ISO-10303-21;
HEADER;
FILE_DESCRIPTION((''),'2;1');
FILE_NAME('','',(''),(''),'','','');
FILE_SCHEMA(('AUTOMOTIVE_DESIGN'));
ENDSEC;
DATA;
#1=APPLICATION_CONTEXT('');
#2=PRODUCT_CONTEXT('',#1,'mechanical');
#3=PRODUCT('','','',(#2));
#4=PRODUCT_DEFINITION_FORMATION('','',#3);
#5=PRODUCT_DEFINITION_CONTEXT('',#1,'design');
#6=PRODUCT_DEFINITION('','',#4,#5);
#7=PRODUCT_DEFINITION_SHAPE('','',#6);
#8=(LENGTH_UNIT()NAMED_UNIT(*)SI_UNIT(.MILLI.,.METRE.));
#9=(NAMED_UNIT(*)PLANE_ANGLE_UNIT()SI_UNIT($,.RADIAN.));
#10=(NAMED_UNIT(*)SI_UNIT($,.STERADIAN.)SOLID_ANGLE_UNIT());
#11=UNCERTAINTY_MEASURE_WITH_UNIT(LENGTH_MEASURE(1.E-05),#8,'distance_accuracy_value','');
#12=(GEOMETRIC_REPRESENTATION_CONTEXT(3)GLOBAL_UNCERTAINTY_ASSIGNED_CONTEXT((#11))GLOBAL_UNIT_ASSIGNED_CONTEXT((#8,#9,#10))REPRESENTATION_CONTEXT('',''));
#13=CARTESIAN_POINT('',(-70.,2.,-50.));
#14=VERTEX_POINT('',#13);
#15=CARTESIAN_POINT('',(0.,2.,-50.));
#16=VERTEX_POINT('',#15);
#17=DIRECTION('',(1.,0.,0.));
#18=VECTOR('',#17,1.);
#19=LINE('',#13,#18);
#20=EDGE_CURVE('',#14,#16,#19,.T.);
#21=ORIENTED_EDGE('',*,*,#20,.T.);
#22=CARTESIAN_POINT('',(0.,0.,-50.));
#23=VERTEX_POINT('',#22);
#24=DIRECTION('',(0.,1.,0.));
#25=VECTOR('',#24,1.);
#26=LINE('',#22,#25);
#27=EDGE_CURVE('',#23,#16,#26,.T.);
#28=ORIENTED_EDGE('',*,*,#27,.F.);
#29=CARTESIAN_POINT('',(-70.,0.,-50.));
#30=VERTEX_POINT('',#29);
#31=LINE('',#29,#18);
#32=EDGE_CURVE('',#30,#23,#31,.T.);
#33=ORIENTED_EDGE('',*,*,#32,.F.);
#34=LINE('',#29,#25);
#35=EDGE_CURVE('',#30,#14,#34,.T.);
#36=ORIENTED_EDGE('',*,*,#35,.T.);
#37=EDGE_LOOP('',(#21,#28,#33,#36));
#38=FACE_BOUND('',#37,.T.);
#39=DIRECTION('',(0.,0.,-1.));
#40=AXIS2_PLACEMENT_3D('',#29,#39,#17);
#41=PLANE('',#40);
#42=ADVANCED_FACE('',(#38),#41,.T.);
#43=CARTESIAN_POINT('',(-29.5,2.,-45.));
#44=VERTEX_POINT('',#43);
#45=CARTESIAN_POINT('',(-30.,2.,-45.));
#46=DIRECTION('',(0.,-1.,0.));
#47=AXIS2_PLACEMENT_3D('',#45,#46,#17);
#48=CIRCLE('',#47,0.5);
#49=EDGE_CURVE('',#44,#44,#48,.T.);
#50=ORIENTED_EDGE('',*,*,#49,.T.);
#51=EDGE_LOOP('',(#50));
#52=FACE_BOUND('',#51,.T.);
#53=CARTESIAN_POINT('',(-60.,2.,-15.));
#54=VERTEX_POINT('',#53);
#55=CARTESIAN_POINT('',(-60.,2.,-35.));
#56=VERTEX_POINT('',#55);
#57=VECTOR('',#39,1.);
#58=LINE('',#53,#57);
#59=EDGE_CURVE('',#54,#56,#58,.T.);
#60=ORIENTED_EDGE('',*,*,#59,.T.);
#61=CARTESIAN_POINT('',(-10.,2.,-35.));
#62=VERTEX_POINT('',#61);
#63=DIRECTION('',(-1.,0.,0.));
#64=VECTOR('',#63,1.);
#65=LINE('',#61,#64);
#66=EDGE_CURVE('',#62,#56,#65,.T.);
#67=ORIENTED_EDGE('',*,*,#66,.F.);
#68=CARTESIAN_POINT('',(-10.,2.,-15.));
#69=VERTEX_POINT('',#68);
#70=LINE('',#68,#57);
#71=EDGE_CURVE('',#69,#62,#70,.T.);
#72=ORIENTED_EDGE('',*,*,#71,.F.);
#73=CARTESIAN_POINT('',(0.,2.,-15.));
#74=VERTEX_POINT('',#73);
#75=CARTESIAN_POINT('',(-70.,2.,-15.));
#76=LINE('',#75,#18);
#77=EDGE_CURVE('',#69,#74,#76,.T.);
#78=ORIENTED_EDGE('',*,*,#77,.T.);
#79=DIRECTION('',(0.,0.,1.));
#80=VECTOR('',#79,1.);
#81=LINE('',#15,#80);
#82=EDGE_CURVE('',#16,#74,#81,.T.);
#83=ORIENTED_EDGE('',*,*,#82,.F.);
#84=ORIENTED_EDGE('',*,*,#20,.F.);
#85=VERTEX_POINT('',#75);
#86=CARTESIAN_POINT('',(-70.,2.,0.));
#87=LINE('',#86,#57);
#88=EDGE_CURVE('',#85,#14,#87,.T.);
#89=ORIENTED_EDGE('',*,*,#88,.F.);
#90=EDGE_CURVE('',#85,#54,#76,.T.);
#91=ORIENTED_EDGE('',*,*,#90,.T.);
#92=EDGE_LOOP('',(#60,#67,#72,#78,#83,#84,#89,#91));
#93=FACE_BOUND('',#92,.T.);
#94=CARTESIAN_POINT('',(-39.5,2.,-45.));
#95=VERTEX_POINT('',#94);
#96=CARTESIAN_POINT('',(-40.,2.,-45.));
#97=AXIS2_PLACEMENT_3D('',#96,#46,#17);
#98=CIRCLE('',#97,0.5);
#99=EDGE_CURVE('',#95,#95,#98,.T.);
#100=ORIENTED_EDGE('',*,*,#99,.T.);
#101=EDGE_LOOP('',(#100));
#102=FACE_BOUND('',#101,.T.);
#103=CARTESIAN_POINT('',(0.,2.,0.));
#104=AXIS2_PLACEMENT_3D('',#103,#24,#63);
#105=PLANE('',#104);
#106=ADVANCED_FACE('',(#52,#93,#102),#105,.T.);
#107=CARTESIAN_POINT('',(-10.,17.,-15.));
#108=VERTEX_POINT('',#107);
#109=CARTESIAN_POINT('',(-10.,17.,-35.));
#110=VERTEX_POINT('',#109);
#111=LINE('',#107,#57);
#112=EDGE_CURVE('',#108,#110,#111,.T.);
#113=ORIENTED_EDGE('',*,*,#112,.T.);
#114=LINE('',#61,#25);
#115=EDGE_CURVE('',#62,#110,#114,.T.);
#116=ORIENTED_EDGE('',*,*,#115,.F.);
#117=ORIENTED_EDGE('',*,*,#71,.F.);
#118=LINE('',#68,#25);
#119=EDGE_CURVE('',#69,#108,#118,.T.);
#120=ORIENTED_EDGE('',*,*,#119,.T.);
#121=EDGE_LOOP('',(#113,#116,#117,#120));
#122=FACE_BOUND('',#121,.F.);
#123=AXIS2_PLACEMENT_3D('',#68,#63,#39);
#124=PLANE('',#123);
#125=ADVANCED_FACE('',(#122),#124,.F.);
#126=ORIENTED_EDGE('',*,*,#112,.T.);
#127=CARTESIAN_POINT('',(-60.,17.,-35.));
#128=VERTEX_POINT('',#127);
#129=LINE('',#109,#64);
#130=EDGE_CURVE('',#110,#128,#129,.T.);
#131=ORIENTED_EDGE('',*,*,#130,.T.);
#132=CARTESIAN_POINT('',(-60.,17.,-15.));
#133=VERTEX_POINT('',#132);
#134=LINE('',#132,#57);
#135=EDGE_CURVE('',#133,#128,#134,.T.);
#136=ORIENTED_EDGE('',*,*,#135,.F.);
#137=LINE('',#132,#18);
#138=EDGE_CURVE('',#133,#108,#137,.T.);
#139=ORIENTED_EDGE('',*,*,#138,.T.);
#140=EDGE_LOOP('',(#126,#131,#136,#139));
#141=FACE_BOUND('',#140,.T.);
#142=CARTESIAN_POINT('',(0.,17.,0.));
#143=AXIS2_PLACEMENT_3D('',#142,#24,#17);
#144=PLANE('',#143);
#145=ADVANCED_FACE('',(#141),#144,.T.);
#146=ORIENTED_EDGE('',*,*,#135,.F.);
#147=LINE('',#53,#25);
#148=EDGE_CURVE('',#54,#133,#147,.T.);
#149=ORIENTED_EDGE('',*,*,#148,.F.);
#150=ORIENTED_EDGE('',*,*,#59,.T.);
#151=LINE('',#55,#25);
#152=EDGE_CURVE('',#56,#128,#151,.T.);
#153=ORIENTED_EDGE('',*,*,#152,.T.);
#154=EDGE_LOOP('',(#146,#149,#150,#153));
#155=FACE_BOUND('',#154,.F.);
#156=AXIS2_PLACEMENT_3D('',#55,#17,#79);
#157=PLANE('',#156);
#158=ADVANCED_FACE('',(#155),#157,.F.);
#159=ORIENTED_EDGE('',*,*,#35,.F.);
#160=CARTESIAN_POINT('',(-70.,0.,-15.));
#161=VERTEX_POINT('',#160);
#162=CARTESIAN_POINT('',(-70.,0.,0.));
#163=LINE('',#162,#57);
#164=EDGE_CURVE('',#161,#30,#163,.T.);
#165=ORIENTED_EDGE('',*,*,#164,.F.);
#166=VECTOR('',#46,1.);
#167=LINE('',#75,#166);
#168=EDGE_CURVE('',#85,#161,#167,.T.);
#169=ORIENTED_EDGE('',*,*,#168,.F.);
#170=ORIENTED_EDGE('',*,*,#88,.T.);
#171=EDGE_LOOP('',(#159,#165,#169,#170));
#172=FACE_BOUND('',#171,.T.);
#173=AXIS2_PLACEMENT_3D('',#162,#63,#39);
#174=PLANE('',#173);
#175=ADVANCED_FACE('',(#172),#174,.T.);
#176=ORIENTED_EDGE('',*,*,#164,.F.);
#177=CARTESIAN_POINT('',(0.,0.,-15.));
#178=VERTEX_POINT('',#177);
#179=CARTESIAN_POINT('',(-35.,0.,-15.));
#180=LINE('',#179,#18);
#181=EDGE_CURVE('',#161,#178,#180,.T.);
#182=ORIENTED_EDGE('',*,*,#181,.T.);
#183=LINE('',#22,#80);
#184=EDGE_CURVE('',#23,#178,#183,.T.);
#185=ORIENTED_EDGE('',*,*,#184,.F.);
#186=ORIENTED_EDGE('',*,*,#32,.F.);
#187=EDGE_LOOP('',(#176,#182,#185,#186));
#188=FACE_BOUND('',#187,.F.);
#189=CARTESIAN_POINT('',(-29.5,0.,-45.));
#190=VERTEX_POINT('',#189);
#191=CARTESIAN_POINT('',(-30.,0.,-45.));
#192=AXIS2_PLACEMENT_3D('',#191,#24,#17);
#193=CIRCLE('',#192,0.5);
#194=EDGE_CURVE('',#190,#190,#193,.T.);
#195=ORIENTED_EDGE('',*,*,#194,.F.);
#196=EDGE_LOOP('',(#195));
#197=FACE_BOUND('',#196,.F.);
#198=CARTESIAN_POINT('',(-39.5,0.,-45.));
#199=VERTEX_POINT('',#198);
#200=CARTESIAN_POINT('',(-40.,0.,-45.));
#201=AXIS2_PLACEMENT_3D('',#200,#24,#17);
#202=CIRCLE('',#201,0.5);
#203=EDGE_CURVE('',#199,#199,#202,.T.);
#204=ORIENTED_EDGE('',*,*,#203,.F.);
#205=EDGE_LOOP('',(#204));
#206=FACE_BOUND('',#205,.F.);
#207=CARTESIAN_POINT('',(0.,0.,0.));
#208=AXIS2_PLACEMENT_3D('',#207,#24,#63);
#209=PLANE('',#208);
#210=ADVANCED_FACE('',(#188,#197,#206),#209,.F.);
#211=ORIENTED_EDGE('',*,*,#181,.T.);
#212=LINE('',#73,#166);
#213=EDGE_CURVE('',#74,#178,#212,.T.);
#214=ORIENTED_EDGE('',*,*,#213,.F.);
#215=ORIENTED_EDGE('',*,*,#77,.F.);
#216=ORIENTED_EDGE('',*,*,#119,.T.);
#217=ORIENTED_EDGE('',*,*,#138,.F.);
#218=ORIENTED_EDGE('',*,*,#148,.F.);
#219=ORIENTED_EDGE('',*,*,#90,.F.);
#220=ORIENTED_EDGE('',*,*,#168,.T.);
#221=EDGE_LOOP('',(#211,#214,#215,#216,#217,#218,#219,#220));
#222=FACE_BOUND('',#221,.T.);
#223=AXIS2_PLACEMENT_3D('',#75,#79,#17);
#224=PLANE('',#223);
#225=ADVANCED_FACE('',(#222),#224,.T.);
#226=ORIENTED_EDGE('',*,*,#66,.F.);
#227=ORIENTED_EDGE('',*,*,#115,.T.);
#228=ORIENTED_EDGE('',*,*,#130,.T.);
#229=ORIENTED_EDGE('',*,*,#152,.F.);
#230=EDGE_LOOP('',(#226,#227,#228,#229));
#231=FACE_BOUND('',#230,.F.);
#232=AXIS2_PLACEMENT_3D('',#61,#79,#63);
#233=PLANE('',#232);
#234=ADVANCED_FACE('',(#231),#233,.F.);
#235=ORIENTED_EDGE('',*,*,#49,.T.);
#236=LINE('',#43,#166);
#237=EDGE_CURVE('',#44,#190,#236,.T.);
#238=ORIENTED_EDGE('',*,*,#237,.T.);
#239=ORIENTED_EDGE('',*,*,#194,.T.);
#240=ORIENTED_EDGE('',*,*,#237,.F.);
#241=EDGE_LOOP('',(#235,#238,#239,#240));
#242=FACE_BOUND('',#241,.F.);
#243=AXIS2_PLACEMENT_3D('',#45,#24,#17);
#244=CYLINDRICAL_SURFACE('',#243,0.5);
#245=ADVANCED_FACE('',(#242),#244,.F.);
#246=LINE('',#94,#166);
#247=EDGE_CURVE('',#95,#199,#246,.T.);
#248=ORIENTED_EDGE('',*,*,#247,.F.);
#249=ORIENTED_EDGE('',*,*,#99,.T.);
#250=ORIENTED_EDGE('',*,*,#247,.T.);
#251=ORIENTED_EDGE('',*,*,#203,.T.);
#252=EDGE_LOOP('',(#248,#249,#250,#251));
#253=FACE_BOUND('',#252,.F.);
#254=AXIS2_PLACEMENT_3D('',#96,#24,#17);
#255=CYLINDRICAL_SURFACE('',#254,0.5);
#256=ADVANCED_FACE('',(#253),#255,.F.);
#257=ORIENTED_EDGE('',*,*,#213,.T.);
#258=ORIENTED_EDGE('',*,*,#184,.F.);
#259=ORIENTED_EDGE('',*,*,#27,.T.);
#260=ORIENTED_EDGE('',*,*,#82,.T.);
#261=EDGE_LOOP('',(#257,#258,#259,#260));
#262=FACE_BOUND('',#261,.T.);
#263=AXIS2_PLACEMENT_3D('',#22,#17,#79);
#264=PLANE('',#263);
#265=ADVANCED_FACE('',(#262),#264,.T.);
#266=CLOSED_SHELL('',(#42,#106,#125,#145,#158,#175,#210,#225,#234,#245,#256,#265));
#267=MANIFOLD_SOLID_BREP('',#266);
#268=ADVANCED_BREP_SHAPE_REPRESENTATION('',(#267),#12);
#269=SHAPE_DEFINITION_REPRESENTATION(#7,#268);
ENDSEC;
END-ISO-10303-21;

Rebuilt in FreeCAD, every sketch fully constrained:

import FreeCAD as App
import Part
import Sketcher

V = App.Vector

doc = App.newDocument("Part")
body = doc.addObject("PartDesign::Body", "Body")

# Sketch on XZ plane
sketch1 = body.newObject("Sketcher::SketchObject", "Sketch")
sketch1.AttachmentSupport = (doc.getObject("XZ_Plane"), [""])
sketch1.MapMode = "FlatFace"
sketch1.addGeometry([
    Part.LineSegment(V(-70, 0, 0), V(0, 0, 0)),
    Part.LineSegment(V(0, 0, 0), V(0, -50, 0)),
    Part.LineSegment(V(0, -50, 0), V(-70, -50, 0)),
    Part.LineSegment(V(-70, -50, 0), V(-70, 0, 0)),
], False)
sketch1.addConstraint([
    Sketcher.Constraint("Coincident", 0, 2, 1, 1),
    Sketcher.Constraint("Coincident", 1, 2, 2, 1),
    Sketcher.Constraint("Coincident", 2, 2, 3, 1),
    Sketcher.Constraint("Coincident", 3, 2, 0, 1),
    Sketcher.Constraint("Horizontal", 0),
    Sketcher.Constraint("Vertical", 1),
    Sketcher.Constraint("Horizontal", 2),
    Sketcher.Constraint("Vertical", 3),
    Sketcher.Constraint("Coincident", 0, 2, -1, 1),
    Sketcher.Constraint("DistanceX", 0, 1, 0, 2, 70.0),
    Sketcher.Constraint("DistanceY", 1, 2, 1, 1, 50.0),
])
pad1 = body.newObject("PartDesign::Pad", "Pad")
pad1.Profile = sketch1
pad1.Length = 2
pad1.Reversed = True

# Sketch on XZ plane
sketch2 = body.newObject("Sketcher::SketchObject", "Sketch001")
sketch2.AttachmentSupport = (doc.getObject("XZ_Plane"), [""])
sketch2.MapMode = "FlatFace"
sketch2.AttachmentOffset = App.Placement(V(0, 0, -2), App.Rotation())
sketch2.addGeometry([
    Part.LineSegment(V(-60, -35, 0), V(-60, -15, 0)),
    Part.LineSegment(V(-60, -15, 0), V(-10, -15, 0)),
    Part.LineSegment(V(-10, -15, 0), V(-10, -35, 0)),
    Part.LineSegment(V(-10, -35, 0), V(-60, -35, 0)),
], False)
sketch2.addConstraint([
    Sketcher.Constraint("Coincident", 0, 2, 1, 1),
    Sketcher.Constraint("Coincident", 1, 2, 2, 1),
    Sketcher.Constraint("Coincident", 2, 2, 3, 1),
    Sketcher.Constraint("Coincident", 3, 2, 0, 1),
    Sketcher.Constraint("Vertical", 0),
    Sketcher.Constraint("Horizontal", 1),
    Sketcher.Constraint("Vertical", 2),
    Sketcher.Constraint("Horizontal", 3),
    Sketcher.Constraint("DistanceX", 1, 1, 1, 2, 50.0),
    Sketcher.Constraint("DistanceY", 0, 1, 0, 2, 20.0),
    Sketcher.Constraint("DistanceX", 1, 2, -1, 1, 10.0),
    Sketcher.Constraint("DistanceY", 0, 2, -1, 1, 15.0),
])
pad2 = body.newObject("PartDesign::Pad", "Pad001")
pad2.Profile = sketch2
pad2.Length = 15
pad2.Reversed = True

# Sketch on XZ plane
sketch3 = body.newObject("Sketcher::SketchObject", "Sketch002")
sketch3.AttachmentSupport = (doc.getObject("XZ_Plane"), [""])
sketch3.MapMode = "FlatFace"
sketch3.AttachmentOffset = App.Placement(V(0, 0, -2), App.Rotation())
sketch3.addGeometry([
    Part.Circle(V(-30, -45, 0), V(0, 0, 1), 0.5),
    Part.Circle(V(-40, -5, 0), V(0, 0, 1), 0.5),
    Part.Circle(V(-40, -45, 0), V(0, 0, 1), 0.5),
    Part.Circle(V(-30, -5, 0), V(0, 0, 1), 0.5),
], False)
sketch3.addConstraint([
    Sketcher.Constraint("Equal", 0, 1),
    Sketcher.Constraint("Equal", 1, 2),
    Sketcher.Constraint("Equal", 2, 3),
    Sketcher.Constraint("Horizontal", 0, 3, 2, 3),
    Sketcher.Constraint("Horizontal", 1, 3, 3, 3),
    Sketcher.Constraint("Vertical", 1, 3, 2, 3),
    Sketcher.Constraint("Vertical", 0, 3, 3, 3),
    Sketcher.Constraint("Diameter", 0, 1.0),
    Sketcher.Constraint("DistanceX", 0, 3, -1, 1, 30.0),
    Sketcher.Constraint("DistanceY", 1, 3, -1, 1, 5.0),
    Sketcher.Constraint("DistanceY", 0, 3, -1, 1, 45.0),
    Sketcher.Constraint("DistanceX", 1, 3, -1, 1, 40.0),
])
pocket1 = body.newObject("PartDesign::Pocket", "Pocket")
pocket1.Profile = sketch3
pocket1.Length = 15
pocket1.Reversed = True

# Sketch on XZ plane
sketch4 = body.newObject("Sketcher::SketchObject", "Sketch003")
sketch4.AttachmentSupport = (doc.getObject("XZ_Plane"), [""])
sketch4.MapMode = "FlatFace"
sketch4.AttachmentOffset = App.Placement(V(0, 0, -2), App.Rotation())
sketch4.addGeometry([
    Part.LineSegment(V(-70, 0, 0), V(0, 0, 0)),
    Part.LineSegment(V(0, 0, 0), V(0, -15, 0)),
    Part.LineSegment(V(0, -15, 0), V(-70, -15, 0)),
    Part.LineSegment(V(-70, -15, 0), V(-70, 0, 0)),
], False)
sketch4.addConstraint([
    Sketcher.Constraint("Coincident", 0, 2, 1, 1),
    Sketcher.Constraint("Coincident", 1, 2, 2, 1),
    Sketcher.Constraint("Coincident", 2, 2, 3, 1),
    Sketcher.Constraint("Coincident", 3, 2, 0, 1),
    Sketcher.Constraint("Horizontal", 0),
    Sketcher.Constraint("Vertical", 1),
    Sketcher.Constraint("Horizontal", 2),
    Sketcher.Constraint("Vertical", 3),
    Sketcher.Constraint("Coincident", 0, 2, -1, 1),
    Sketcher.Constraint("DistanceY", 1, 2, 1, 1, 15.0),
    Sketcher.Constraint("DistanceX", 0, 1, 0, 2, 70.0),
])
pocket2 = body.newObject("PartDesign::Pocket", "Pocket001")
pocket2.Profile = sketch4
pocket2.Length = 15
pocket2.Reversed = True

doc.recompute()
